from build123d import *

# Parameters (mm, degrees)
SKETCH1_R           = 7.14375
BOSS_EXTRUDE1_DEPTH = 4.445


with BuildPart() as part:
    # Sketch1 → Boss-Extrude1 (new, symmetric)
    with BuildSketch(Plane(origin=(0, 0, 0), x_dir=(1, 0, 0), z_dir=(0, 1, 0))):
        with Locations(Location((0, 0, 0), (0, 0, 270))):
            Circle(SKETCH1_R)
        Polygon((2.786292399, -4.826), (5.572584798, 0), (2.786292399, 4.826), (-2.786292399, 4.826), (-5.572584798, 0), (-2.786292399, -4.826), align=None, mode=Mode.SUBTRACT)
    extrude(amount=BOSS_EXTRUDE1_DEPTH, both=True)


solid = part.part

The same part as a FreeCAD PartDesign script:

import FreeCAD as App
import Part
import Sketcher
Q = App.Units.Quantity


def add_polygon(sketch, points):
    """Adds a closed chain of lines whose ends are joined by coincident constraints."""
    first, n = sketch.GeometryCount, len(points)
    for a, b in zip(points, points[1:] + points[:1]):
        sketch.addGeometry(Part.LineSegment(App.Vector(*a, 0), App.Vector(*b, 0)), False)
    for i in range(n):
        sketch.addConstraint(Sketcher.Constraint("Coincident", first + i, 2, first + (i + 1) % n, 1))

doc = App.newDocument("Part")
params = doc.addObject("Spreadsheet::Sheet", "Params")
for row, (alias, value) in enumerate([
    ("sketch1_diameter", "0.5625 in"),
    ("pad1_length", "0.35 in"),
], start=1):
    params.set(f"A{row}", alias)
    params.set(f"B{row}", "=" + value)
    params.setAlias(f"B{row}", alias)

body = doc.addObject("PartDesign::Body", "Body")

sketch1 = doc.addObject("Sketcher::SketchObject", "Sketch")
body.addObject(sketch1)
sketch1.AttachmentSupport = (doc.XZ_Plane, [""])
sketch1.MapMode = "FlatFace"
sketch1.addGeometry(Part.Circle(App.Vector(0, 0, 0), App.Vector(0, 0, 1), 7), False)
add_polygon(sketch1, [(6, 0), (3, 5), (-3, 5), (-6, 0), (-3, -5), (3, -5)])
sketch1.addConstraint(Sketcher.Constraint("Horizontal", 2))
sketch1.addConstraint(Sketcher.Constraint("Horizontal", 5))
sketch1.addConstraint(Sketcher.Constraint("Coincident", 0, 3, -1, 1))
sketch1.addConstraint(Sketcher.Constraint("Symmetric", 1, 2, 4, 2, -1, 1))
sketch1.addConstraint(Sketcher.Constraint("Symmetric", 3, 2, 6, 2, -1, 1))
sketch1.addConstraint(Sketcher.Constraint("PointOnObject", 3, 2, -1))
sketch1.addConstraint(Sketcher.Constraint("Parallel", 3, 6))
sketch1.addConstraint(Sketcher.Constraint("Vertical", 2, 2, 4, 2))
sketch1.addConstraint(Sketcher.Constraint("Diameter", 0, Q("0.5625 in")))
sketch1.addConstraint(Sketcher.Constraint("Angle", 1, Q("120 deg")))
sketch1.addConstraint(Sketcher.Constraint("DistanceY", -1, 1, 1, 2, Q("0.19 in")))
sketch1.addConstraint(Sketcher.Constraint("DistanceX", 2, 2, 2, 1, 5.572585))
sketch1.setExpression("Constraints[14]", "Params.sketch1_diameter")
pad1 = doc.addObject("PartDesign::Pad", "Pad")
body.addObject(pad1)
pad1.Profile = sketch1
pad1.setExpression("Length", "Params.pad1_length")
pad1.Midplane = True

doc.recompute()
